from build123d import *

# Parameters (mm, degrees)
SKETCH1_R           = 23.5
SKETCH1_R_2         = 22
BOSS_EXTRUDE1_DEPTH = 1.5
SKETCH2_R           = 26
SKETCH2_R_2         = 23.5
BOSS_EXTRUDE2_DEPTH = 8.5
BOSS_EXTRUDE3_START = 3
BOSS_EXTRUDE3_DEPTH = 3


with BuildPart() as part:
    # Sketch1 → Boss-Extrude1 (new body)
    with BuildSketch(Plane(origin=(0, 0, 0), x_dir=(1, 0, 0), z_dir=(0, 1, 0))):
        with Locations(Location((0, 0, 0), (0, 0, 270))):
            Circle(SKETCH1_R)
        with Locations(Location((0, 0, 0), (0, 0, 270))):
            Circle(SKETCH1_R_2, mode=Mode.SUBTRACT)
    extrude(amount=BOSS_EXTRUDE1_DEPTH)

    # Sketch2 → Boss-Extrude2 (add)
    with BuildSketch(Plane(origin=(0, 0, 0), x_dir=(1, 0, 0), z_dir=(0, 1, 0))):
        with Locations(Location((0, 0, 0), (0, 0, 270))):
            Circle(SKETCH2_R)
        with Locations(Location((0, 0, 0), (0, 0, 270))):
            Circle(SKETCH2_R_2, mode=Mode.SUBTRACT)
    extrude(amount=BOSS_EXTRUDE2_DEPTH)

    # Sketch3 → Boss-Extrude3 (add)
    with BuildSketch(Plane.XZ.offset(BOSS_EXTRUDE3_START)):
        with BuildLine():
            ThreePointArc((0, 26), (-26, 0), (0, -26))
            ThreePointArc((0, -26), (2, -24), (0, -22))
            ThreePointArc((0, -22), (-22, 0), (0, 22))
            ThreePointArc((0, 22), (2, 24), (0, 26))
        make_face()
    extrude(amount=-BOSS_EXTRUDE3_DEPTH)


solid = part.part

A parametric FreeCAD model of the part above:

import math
import FreeCAD as App
import Part
import Sketcher

V = App.Vector
Q = App.Units.Quantity

doc = App.newDocument("Part")
params = doc.addObject("Spreadsheet::Sheet", "Params")
for row, (alias, value) in enumerate([
    ("sketch1_diameter", "47 mm"),
    ("sketch1_diameter2", "44 mm"),
    ("pad1_length", "1.5 mm"),
    ("sketch2_diameter", "52 mm"),
    ("sketch2_diameter2", "47 mm"),
    ("pad2_length", "8.5 mm"),
    ("sketch3_radius", "26 mm"),
    ("sketch3_radius2", "2 mm"),
    ("pad3_length", "3 mm"),
], start=1):
    params.set(f"A{row}", alias)
    params.set(f"B{row}", "=" + value)
    params.setAlias(f"B{row}", alias)

body = doc.addObject("PartDesign::Body", "Body")

sketch1 = body.newObject("Sketcher::SketchObject", "Sketch")
sketch1.AttachmentSupport = (doc.getObject("XZ_Plane"), [""])
sketch1.MapMode = "FlatFace"
sketch1.addGeometry(Part.Circle(V(0, 0, 0), V(0, 0, 1), 24), False)
sketch1.addGeometry(Part.Circle(V(0, 0, 0), V(0, 0, 1), 22), False)
sketch1.addConstraint(Sketcher.Constraint("Coincident", 0, 3, -1, 1))
sketch1.addConstraint(Sketcher.Constraint("Coincident", 1, 3, -1, 1))
sketch1.addConstraint(Sketcher.Constraint("Diameter", 0, Q("47 mm")))
sketch1.addConstraint(Sketcher.Constraint("Diameter", 1, Q("44 mm")))
sketch1.setExpression("Constraints[2]", "Params.sketch1_diameter")
sketch1.setExpression("Constraints[3]", "Params.sketch1_diameter2")
pad1 = body.newObject("PartDesign::Pad", "Pad")
pad1.Profile = sketch1
pad1.setExpression("Length", "Params.pad1_length")
pad1.Reversed = True

sketch2 = body.newObject("Sketcher::SketchObject", "Sketch001")
sketch2.AttachmentSupport = (doc.getObject("XZ_Plane"), [""])
sketch2.MapMode = "FlatFace"
sketch2.addGeometry(Part.Circle(V(0, 0, 0), V(0, 0, 1), 26), False)
sketch2.addGeometry(Part.Circle(V(0, 0, 0), V(0, 0, 1), 24), False)
sketch2.addConstraint(Sketcher.Constraint("Coincident", 0, 3, -1, 1))
sketch2.addConstraint(Sketcher.Constraint("Coincident", 1, 3, -1, 1))
sketch2.addConstraint(Sketcher.Constraint("Diameter", 0, Q("52 mm")))
sketch2.addConstraint(Sketcher.Constraint("Diameter", 1, Q("47 mm")))
sketch2.setExpression("Constraints[2]", "Params.sketch2_diameter")
sketch2.setExpression("Constraints[3]", "Params.sketch2_diameter2")
pad2 = body.newObject("PartDesign::Pad", "Pad001")
pad2.Profile = sketch2
pad2.setExpression("Length", "Params.pad2_length")
pad2.Reversed = True

sketch3 = body.newObject("Sketcher::SketchObject", "Sketch002")
sketch3.AttachmentSupport = (doc.getObject("XZ_Plane"), [""])
sketch3.MapMode = "FlatFace"
sketch3.AttachmentOffset = App.Placement(V(0, 0, 3), App.Rotation())
sketch3.addGeometry(Part.ArcOfCircle(Part.Circle(V(0, 0, 0), V(0, 0, 1), 26), math.radians(90), math.radians(270)), False)
sketch3.addGeometry(Part.ArcOfCircle(Part.Circle(V(0, -24, 0), V(0, 0, 1), 2), math.radians(-90), math.radians(90)), False)
sketch3.addGeometry(Part.ArcOfCircle(Part.Circle(V(0, 0, 0), V(0, 0, 1), 22), math.radians(90), math.radians(270)), False)
sketch3.addGeometry(Part.ArcOfCircle(Part.Circle(V(0, 24, 0), V(0, 0, 1), 2), math.radians(-90), math.radians(90)), False)
sketch3.addConstraint(Sketcher.Constraint("Tangent", 0, 2, 1, 1))
sketch3.addConstraint(Sketcher.Constraint("Tangent", 1, 2, 2, 2))
sketch3.addConstraint(Sketcher.Constraint("Tangent", 2, 1, 3, 1))
sketch3.addConstraint(Sketcher.Constraint("Tangent", 3, 2, 0, 1))
sketch3.addConstraint(Sketcher.Constraint("Coincident", 0, 3, -1, 1))
sketch3.addConstraint(Sketcher.Constraint("Coincident", 2, 3, -1, 1))
sketch3.addConstraint(Sketcher.Constraint("PointOnObject", 1, 3, -2))
sketch3.addConstraint(Sketcher.Constraint("PointOnObject", 3, 3, -2))
sketch3.addConstraint(Sketcher.Constraint("Radius", 0, Q("26 mm")))
sketch3.addConstraint(Sketcher.Constraint("Radius", 1, Q("2 mm")))
sketch3.setExpression("Constraints[8]", "Params.sketch3_radius")
sketch3.setExpression("Constraints[9]", "Params.sketch3_radius2")
pad3 = body.newObject("PartDesign::Pad", "Pad002")
pad3.Profile = sketch3
pad3.setExpression("Length", "Params.pad3_length")
pad3.Reversed = True

doc.recompute()
